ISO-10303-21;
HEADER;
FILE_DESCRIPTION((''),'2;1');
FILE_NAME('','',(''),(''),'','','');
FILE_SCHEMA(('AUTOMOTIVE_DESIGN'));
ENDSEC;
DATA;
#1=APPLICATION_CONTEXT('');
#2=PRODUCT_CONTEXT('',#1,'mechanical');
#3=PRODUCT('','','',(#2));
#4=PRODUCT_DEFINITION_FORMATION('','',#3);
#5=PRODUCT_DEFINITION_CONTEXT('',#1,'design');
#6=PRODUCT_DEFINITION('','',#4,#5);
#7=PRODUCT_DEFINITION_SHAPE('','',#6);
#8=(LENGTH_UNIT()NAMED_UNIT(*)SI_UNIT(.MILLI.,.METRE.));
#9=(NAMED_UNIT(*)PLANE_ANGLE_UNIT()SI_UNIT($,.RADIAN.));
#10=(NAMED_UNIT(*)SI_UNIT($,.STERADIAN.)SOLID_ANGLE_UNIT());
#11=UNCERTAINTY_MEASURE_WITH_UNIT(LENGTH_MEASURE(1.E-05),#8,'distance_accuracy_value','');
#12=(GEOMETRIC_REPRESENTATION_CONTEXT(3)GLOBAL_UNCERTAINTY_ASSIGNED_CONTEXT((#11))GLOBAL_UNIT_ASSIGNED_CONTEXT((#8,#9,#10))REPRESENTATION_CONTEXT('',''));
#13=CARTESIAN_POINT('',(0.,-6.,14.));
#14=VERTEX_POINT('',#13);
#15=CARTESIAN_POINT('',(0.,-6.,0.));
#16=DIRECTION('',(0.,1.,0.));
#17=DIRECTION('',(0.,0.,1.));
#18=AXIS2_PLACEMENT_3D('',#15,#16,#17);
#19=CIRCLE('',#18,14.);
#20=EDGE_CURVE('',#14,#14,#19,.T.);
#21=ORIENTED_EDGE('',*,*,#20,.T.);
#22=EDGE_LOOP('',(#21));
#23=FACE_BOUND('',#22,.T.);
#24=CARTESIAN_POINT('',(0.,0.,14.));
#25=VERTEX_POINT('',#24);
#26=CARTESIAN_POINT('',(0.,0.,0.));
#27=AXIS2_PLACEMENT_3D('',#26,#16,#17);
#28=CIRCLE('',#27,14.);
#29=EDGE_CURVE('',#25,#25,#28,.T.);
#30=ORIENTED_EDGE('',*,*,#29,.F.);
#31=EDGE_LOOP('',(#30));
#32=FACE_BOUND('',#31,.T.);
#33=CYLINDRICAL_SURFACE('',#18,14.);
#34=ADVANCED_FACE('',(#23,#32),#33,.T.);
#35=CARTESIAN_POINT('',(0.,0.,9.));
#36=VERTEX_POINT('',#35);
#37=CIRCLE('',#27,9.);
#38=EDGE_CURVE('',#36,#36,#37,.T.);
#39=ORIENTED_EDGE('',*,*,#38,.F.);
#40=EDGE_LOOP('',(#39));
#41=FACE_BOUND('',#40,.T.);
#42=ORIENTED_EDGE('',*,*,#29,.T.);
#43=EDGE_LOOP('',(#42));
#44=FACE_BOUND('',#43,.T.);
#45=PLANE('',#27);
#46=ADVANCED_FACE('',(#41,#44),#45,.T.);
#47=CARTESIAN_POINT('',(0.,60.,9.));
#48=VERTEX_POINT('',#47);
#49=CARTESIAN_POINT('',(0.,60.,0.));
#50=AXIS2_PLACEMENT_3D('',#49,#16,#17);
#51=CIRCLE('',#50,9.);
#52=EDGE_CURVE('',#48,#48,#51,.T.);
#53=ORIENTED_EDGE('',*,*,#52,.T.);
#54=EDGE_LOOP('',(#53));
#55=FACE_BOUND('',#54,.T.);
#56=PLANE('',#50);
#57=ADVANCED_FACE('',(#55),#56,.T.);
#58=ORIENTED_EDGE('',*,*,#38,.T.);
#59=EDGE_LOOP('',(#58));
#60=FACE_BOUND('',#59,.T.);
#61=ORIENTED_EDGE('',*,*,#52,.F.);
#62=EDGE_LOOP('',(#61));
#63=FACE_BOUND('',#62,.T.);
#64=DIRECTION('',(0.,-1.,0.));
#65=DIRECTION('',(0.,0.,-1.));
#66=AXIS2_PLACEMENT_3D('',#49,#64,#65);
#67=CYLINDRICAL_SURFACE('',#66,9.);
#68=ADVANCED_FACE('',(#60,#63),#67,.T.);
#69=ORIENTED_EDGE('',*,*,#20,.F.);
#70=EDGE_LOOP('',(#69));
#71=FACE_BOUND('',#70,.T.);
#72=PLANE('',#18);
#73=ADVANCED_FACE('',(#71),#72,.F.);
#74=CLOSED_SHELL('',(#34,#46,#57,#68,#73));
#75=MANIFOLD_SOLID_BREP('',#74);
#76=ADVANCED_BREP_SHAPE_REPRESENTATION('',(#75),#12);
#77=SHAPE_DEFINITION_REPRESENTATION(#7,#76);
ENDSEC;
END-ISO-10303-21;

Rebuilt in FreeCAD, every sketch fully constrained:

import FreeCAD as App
import Part
import Sketcher
from FreeCAD import Vector

doc = App.newDocument("Part")
params = doc.addObject("Spreadsheet::Sheet", "Params")
for row, (alias, value) in enumerate([
    ("sketch1_diameter", "18 mm"),
    ("pad1_length", "60 mm"),
    ("sketch2_diameter", "28 mm"),
    ("pad2_length", "6 mm"),
], start=1):
    params.set(f"A{row}", alias)
    params.set(f"B{row}", "=" + value)
    params.setAlias(f"B{row}", alias)

body = doc.addObject("PartDesign::Body", "Body")

sketch1 = body.newObject("Sketcher::SketchObject", "Sketch")
sketch1.AttachmentSupport = (doc.getObject("XZ_Plane"), [""])
sketch1.MapMode = "FlatFace"
sketch1.addGeometry(Part.Circle(Vector(0, 0, 0), Vector(0, 0, 1), 9), False)
sketch1.addConstraint(Sketcher.Constraint("Coincident", 0, 3, -1, 1))
sketch1.addConstraint(Sketcher.Constraint("Diameter", 0, 18.0))
sketch1.setExpression("Constraints[1]", "Params.sketch1_diameter")
pad1 = body.newObject("PartDesign::Pad", "Pad")
pad1.Profile = sketch1
pad1.setExpression("Length", "Params.pad1_length")
pad1.Reversed = True

sketch2 = body.newObject("Sketcher::SketchObject", "Sketch001")
sketch2.AttachmentSupport = (doc.getObject("XZ_Plane"), [""])
sketch2.MapMode = "FlatFace"
sketch2.addGeometry(Part.Circle(Vector(0, 0, 0), Vector(0, 0, 1), 14), False)
sketch2.addConstraint(Sketcher.Constraint("Coincident", 0, 3, -1, 1))
sketch2.addConstraint(Sketcher.Constraint("Diameter", 0, 28.0))
sketch2.setExpression("Constraints[1]", "Params.sketch2_diameter")
pad2 = body.newObject("PartDesign::Pad", "Pad001")
pad2.Profile = sketch2
pad2.setExpression("Length", "Params.pad2_length")

doc.recompute()
